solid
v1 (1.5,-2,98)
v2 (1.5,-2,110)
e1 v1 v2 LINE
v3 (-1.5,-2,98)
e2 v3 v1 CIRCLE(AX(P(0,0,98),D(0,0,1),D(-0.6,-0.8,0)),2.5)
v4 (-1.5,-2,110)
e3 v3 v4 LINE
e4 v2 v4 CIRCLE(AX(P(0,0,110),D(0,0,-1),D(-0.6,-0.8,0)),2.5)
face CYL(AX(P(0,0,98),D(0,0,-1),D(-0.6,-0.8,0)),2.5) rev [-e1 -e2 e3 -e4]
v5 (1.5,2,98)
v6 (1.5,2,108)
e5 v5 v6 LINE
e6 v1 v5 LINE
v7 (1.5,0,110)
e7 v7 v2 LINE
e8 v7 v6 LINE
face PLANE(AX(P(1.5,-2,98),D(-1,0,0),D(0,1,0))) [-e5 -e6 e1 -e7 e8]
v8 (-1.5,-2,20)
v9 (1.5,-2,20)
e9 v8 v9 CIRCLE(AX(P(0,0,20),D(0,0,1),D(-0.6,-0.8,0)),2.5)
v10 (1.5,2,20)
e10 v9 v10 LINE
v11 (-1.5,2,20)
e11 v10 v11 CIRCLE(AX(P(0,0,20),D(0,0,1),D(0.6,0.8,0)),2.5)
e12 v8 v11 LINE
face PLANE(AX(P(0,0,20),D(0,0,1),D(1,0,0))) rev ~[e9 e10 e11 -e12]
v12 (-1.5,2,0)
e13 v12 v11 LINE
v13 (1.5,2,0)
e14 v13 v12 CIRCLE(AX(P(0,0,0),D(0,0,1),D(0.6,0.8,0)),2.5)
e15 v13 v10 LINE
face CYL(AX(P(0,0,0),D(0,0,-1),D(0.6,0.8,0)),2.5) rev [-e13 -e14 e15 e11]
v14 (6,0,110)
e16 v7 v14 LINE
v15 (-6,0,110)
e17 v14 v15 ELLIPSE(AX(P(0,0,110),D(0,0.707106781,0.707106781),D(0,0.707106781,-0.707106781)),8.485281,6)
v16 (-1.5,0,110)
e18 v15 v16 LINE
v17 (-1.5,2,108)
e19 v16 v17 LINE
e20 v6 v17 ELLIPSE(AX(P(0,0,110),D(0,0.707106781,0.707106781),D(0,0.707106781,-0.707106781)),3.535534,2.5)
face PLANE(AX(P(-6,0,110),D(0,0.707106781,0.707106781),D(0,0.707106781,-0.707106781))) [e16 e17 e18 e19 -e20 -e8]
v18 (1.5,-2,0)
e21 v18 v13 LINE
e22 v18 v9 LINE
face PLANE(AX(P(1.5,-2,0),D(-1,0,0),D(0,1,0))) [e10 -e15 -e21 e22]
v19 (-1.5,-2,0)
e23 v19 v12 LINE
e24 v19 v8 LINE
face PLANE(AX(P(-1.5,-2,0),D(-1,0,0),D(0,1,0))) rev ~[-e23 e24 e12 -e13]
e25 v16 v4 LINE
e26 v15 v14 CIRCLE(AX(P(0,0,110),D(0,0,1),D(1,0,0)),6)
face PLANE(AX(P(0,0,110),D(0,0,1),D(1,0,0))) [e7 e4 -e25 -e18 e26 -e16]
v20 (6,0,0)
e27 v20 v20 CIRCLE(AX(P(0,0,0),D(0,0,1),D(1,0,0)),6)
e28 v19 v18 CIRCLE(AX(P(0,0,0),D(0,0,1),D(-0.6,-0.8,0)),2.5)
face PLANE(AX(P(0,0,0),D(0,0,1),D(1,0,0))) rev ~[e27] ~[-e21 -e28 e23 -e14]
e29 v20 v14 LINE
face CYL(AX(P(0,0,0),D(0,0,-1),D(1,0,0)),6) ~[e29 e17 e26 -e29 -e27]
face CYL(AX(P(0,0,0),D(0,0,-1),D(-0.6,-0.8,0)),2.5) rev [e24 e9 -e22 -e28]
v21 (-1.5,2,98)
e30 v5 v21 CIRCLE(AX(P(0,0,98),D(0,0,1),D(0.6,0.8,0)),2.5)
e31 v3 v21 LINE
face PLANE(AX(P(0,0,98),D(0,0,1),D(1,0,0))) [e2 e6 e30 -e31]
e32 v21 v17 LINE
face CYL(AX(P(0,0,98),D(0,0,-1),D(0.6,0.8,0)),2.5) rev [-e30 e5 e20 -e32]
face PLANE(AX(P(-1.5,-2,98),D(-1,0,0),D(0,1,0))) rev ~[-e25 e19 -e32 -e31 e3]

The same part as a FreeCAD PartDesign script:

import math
import FreeCAD as App
import Part
import Sketcher

V = App.Vector
Q = App.Units.Quantity


def add_polygon(sketch, points):
    """Adds a closed chain of lines whose ends are joined by coincident constraints."""
    first, n = sketch.GeometryCount, len(points)
    for a, b in zip(points, points[1:] + points[:1]):
        sketch.addGeometry(Part.LineSegment(App.Vector(*a, 0), App.Vector(*b, 0)), False)
    for i in range(n):
        sketch.addConstraint(Sketcher.Constraint("Coincident", first + i, 2, first + (i + 1) % n, 1))

doc = App.newDocument("Part")
body = doc.addObject("PartDesign::Body", "Body")

sketch1 = doc.addObject("Sketcher::SketchObject", "Sketch")
body.addObject(sketch1)
sketch1.AttachmentSupport = (doc.XY_Plane, [""])
sketch1.MapMode = "FlatFace"
sketch1.addGeometry(Part.Circle(V(0, 0, 0), V(0, 0, 1), 6), False)
sketch1.addConstraint([
    Sketcher.Constraint("Coincident", 0, 3, -1, 1),
    Sketcher.Constraint("Diameter", 0, Q("12 mm")),
])
pad1 = doc.addObject("PartDesign::Pad", "Pad")
body.addObject(pad1)
pad1.Profile = sketch1
pad1.Length = 110

sketch2 = doc.addObject("Sketcher::SketchObject", "Sketch001")
body.addObject(sketch2)
sketch2.AttachmentSupport = (doc.XY_Plane, [""])
sketch2.MapMode = "FlatFace"
sketch2.addGeometry([
    Part.LineSegment(V(-1.5, 2, 0), V(-1.5, -2, 0)),
    Part.ArcOfCircle(Part.Circle(V(0, 0, 0), V(0, 0, 1), 2.5), math.radians(-126.869898), math.radians(-53.130102)),
    Part.LineSegment(V(1.5, -2, 0), V(1.5, 2, 0)),
    Part.ArcOfCircle(Part.Circle(V(0, 0, 0), V(0, 0, 1), 2.5), math.radians(53.130102), math.radians(126.869898)),
], False)
sketch2.addConstraint([
    Sketcher.Constraint("Coincident", 0, 2, 1, 1),
    Sketcher.Constraint("Coincident", 1, 2, 2, 1),
    Sketcher.Constraint("Coincident", 2, 2, 3, 1),
    Sketcher.Constraint("Coincident", 3, 2, 0, 1),
    Sketcher.Constraint("Vertical", 0),
    Sketcher.Constraint("Vertical", 2),
    Sketcher.Constraint("Coincident", 1, 3, -1, 1),
    Sketcher.Constraint("Coincident", 3, 3, -1, 1),
    Sketcher.Constraint("Equal", 1, 3),
    Sketcher.Constraint("Horizontal", 0, 2, 1, 2),
    Sketcher.Constraint("Radius", 1, Q("2.5 mm")),
    Sketcher.Constraint("DistanceY", 0, 2, 0, 1, Q("4 mm")),
])
pocket1 = doc.addObject("PartDesign::Pocket", "Pocket")
body.addObject(pocket1)
pocket1.Profile = sketch2
pocket1.Length = 20
pocket1.Reversed = True
doc.recompute()

linearpattern = doc.addObject("PartDesign::LinearPattern", "LinearPattern")
body.addObject(linearpattern)
linearpattern.Originals = [pocket1]
linearpattern.Direction = (doc.Z_Axis, [""])
linearpattern.Mode = "offset"
linearpattern.Offset = 98
linearpattern.Occurrences = 2
body.Tip = linearpattern

sketch3 = doc.addObject("Sketcher::SketchObject", "Sketch002")
body.addObject(sketch3)
sketch3.AttachmentSupport = (doc.YZ_Plane, [""])
sketch3.MapMode = "FlatFace"
sketch3.AttachmentOffset = App.Placement(V(0, 0, -6), App.Rotation())
add_polygon(sketch3, [(6.178, 103.822), (0, 110), (6.178, 110)])
sketch3.addConstraint([
    Sketcher.Constraint("Horizontal", 1),
    Sketcher.Constraint("Vertical", 2),
    Sketcher.Constraint("PointOnObject", 0, 2, -2),
    Sketcher.Constraint("Equal", 1, 2),
    Sketcher.Constraint("DistanceY", -1, 1, 0, 2, Q("110 mm")),
    Sketcher.Constraint("DistanceX", 1, 1, 1, 2, Q("6.178 mm")),
])
pocket2 = doc.addObject("PartDesign::Pocket", "Pocket001")
body.addObject(pocket2)
pocket2.Profile = sketch3
pocket2.Length = 100
pocket2.Reversed = True

doc.recompute()
